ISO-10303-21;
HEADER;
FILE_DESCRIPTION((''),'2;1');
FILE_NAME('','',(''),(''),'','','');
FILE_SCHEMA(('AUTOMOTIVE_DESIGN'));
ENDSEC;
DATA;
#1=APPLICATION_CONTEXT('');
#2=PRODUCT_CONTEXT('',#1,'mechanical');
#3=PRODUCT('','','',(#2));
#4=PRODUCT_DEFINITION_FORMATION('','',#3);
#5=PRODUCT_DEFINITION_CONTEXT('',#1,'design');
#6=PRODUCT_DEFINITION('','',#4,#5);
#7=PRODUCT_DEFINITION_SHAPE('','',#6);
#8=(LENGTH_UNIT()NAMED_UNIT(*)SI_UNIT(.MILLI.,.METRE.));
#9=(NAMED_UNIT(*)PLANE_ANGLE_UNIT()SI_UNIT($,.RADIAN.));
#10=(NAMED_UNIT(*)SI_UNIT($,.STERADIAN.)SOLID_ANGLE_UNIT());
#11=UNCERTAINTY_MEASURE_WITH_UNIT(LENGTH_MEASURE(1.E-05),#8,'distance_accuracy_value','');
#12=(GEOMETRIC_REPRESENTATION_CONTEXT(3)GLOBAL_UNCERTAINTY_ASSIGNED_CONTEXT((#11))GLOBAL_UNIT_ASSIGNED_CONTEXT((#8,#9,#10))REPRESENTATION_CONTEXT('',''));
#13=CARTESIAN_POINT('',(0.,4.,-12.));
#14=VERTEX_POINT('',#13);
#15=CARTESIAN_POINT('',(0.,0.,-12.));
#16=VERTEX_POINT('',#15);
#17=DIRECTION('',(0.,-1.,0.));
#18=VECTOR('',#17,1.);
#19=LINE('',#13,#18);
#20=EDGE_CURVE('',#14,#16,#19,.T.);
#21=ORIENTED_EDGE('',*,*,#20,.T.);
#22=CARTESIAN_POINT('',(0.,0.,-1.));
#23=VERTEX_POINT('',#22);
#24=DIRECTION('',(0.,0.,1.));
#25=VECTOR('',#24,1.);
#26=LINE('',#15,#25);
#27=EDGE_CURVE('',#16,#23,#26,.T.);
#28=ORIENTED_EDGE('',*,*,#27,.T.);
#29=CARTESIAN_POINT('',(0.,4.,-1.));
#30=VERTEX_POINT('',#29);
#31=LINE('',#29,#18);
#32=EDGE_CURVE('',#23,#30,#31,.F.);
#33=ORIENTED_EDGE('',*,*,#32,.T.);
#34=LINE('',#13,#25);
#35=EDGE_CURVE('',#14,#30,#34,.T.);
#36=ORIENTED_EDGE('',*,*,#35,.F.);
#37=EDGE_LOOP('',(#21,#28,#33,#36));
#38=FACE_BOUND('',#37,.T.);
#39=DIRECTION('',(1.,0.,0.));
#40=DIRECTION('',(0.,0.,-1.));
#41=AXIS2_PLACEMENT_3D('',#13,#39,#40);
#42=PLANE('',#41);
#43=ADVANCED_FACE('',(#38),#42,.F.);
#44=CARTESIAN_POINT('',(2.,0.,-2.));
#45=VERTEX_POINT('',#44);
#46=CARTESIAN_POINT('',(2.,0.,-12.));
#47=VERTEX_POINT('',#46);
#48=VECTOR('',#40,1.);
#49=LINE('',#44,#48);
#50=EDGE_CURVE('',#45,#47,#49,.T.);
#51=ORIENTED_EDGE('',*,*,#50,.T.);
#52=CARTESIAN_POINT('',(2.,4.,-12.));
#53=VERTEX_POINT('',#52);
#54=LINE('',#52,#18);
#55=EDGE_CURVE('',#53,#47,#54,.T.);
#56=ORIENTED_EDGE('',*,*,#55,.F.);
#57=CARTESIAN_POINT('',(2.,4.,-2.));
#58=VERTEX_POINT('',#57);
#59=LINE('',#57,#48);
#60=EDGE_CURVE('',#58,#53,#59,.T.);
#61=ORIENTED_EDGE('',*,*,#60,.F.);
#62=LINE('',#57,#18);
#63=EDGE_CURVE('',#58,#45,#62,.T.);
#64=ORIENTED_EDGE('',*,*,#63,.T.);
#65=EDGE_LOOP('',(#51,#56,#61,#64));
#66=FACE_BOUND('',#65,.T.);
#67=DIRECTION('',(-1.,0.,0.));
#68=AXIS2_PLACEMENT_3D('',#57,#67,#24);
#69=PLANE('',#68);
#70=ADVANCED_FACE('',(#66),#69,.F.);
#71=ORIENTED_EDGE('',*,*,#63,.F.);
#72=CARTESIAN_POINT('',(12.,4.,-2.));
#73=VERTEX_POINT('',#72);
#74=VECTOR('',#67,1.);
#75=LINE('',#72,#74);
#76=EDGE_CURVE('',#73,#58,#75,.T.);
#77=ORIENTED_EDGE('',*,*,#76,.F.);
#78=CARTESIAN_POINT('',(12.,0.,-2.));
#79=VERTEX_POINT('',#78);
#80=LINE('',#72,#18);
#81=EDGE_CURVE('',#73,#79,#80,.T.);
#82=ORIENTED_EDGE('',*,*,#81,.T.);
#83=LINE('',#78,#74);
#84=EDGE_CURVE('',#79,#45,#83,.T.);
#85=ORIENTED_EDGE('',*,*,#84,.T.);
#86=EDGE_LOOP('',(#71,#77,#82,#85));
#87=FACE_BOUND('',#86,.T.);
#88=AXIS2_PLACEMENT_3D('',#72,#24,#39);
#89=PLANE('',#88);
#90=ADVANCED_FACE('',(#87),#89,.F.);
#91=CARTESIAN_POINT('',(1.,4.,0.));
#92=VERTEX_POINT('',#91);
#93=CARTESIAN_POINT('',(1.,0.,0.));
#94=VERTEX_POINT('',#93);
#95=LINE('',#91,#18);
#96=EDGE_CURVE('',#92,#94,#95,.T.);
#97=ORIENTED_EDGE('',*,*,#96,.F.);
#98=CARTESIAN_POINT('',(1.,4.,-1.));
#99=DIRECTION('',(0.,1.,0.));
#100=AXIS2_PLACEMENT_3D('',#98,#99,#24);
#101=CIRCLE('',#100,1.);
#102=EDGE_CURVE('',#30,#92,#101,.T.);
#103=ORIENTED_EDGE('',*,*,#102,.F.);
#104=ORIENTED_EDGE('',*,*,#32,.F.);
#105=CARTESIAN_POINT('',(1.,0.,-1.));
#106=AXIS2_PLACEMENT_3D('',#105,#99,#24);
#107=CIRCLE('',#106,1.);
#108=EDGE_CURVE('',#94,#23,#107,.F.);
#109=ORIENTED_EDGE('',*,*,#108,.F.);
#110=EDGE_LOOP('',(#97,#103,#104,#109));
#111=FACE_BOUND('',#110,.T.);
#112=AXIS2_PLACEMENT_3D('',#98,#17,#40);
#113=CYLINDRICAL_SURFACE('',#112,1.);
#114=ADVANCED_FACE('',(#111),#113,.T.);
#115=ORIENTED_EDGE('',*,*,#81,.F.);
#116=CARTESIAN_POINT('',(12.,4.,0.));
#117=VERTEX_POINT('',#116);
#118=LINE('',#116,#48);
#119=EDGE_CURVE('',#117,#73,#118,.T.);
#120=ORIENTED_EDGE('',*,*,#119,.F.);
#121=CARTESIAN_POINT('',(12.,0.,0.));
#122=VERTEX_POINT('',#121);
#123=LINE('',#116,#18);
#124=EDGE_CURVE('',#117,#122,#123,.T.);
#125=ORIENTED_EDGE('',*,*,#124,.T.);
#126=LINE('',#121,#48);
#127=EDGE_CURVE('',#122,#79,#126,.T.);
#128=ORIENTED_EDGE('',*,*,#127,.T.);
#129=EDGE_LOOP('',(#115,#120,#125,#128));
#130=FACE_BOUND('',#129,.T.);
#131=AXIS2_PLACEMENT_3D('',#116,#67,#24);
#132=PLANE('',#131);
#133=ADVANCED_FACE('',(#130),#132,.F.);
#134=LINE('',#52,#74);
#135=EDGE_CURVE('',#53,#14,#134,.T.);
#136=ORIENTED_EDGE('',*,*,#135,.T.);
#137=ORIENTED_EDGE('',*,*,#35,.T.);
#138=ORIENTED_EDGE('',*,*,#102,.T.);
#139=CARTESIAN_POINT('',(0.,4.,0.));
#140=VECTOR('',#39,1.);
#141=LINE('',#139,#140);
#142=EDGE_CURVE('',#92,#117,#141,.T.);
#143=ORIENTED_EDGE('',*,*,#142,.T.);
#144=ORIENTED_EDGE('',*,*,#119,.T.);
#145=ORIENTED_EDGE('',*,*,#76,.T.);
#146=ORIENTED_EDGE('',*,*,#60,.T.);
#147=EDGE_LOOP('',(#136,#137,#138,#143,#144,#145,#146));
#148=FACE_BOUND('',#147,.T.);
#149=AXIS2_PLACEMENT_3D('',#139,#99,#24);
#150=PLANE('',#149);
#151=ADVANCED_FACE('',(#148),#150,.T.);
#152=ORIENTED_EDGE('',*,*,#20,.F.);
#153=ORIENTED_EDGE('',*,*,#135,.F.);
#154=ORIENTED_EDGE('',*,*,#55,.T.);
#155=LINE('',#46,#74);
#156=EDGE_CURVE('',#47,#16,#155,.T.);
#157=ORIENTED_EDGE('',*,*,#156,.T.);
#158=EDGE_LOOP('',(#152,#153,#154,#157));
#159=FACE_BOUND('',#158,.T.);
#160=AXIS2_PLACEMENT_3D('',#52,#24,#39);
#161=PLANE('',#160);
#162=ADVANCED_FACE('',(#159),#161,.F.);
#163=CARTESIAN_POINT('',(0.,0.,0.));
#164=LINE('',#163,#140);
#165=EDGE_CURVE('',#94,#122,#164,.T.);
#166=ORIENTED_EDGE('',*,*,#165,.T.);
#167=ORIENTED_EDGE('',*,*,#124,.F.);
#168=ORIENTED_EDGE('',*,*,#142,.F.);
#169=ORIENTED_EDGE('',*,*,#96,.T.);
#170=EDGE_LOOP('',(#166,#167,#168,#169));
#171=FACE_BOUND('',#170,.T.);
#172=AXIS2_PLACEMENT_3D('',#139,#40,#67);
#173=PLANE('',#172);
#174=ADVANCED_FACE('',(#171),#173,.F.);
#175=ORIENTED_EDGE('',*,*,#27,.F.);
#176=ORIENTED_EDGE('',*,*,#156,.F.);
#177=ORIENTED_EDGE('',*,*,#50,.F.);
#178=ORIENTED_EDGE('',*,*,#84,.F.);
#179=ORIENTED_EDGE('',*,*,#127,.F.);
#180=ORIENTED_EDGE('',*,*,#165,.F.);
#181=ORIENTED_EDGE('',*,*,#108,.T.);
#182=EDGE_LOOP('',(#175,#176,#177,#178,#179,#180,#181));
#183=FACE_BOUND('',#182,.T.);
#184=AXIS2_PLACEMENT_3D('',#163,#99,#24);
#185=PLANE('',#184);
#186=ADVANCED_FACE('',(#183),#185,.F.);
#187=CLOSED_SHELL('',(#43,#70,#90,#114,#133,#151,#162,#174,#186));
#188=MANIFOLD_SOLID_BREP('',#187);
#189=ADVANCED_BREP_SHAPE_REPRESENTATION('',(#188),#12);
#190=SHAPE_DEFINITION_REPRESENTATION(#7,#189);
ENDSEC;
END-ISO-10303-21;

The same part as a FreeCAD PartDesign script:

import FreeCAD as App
import Part
import Sketcher
Q = App.Units.Quantity


def edges_at(feature, points):
    """Names of the edges that pass closest to the given points."""
    edges = feature.Shape.Edges
    near = lambda p: min(range(len(edges)), key=lambda i: edges[i].distToShape(Part.Vertex(*p))[0])
    return sorted({f"Edge{near(p) + 1}" for p in points})


def add_polygon(sketch, points):
    """Adds a closed chain of lines whose ends are joined by coincident constraints."""
    first, n = sketch.GeometryCount, len(points)
    for a, b in zip(points, points[1:] + points[:1]):
        sketch.addGeometry(Part.LineSegment(App.Vector(*a, 0), App.Vector(*b, 0)), False)
    for i in range(n):
        sketch.addConstraint(Sketcher.Constraint("Coincident", first + i, 2, first + (i + 1) % n, 1))

doc = App.newDocument("Part")
body = doc.addObject("PartDesign::Body", "Body")

sketch1 = body.newObject("Sketcher::SketchObject", "Sketch")
sketch1.AttachmentSupport = (doc.getObject("XZ_Plane"), [""])
sketch1.MapMode = "FlatFace"
add_polygon(sketch1, [(0, 0), (12, 0), (12, -2), (2, -2), (2, -12), (0, -12)])
sketch1.addConstraint(Sketcher.Constraint("Horizontal", 0))
sketch1.addConstraint(Sketcher.Constraint("Vertical", 1))
sketch1.addConstraint(Sketcher.Constraint("Horizontal", 2))
sketch1.addConstraint(Sketcher.Constraint("Vertical", 3))
sketch1.addConstraint(Sketcher.Constraint("Horizontal", 4))
sketch1.addConstraint(Sketcher.Constraint("Vertical", 5))
sketch1.addConstraint(Sketcher.Constraint("Coincident", 5, 2, -1, 1))
sketch1.addConstraint(Sketcher.Constraint("Equal", 4, 1))
sketch1.addConstraint(Sketcher.Constraint("Equal", 2, 3))
sketch1.addConstraint(Sketcher.Constraint("DistanceX", 0, 1, 0, 2, Q("12 mm")))
sketch1.addConstraint(Sketcher.Constraint("DistanceX", 2, 2, 2, 1, Q("10 mm")))
pad1 = body.newObject("PartDesign::Pad", "Pad")
pad1.Profile = sketch1
pad1.Length = 4
pad1.Reversed = True
doc.recompute()

fillet = body.newObject("PartDesign::Fillet", "Fillet")
fillet.Base = (pad1, edges_at(pad1, [(0, 2, 0)]))
fillet.Radius = 1

doc.recompute()
